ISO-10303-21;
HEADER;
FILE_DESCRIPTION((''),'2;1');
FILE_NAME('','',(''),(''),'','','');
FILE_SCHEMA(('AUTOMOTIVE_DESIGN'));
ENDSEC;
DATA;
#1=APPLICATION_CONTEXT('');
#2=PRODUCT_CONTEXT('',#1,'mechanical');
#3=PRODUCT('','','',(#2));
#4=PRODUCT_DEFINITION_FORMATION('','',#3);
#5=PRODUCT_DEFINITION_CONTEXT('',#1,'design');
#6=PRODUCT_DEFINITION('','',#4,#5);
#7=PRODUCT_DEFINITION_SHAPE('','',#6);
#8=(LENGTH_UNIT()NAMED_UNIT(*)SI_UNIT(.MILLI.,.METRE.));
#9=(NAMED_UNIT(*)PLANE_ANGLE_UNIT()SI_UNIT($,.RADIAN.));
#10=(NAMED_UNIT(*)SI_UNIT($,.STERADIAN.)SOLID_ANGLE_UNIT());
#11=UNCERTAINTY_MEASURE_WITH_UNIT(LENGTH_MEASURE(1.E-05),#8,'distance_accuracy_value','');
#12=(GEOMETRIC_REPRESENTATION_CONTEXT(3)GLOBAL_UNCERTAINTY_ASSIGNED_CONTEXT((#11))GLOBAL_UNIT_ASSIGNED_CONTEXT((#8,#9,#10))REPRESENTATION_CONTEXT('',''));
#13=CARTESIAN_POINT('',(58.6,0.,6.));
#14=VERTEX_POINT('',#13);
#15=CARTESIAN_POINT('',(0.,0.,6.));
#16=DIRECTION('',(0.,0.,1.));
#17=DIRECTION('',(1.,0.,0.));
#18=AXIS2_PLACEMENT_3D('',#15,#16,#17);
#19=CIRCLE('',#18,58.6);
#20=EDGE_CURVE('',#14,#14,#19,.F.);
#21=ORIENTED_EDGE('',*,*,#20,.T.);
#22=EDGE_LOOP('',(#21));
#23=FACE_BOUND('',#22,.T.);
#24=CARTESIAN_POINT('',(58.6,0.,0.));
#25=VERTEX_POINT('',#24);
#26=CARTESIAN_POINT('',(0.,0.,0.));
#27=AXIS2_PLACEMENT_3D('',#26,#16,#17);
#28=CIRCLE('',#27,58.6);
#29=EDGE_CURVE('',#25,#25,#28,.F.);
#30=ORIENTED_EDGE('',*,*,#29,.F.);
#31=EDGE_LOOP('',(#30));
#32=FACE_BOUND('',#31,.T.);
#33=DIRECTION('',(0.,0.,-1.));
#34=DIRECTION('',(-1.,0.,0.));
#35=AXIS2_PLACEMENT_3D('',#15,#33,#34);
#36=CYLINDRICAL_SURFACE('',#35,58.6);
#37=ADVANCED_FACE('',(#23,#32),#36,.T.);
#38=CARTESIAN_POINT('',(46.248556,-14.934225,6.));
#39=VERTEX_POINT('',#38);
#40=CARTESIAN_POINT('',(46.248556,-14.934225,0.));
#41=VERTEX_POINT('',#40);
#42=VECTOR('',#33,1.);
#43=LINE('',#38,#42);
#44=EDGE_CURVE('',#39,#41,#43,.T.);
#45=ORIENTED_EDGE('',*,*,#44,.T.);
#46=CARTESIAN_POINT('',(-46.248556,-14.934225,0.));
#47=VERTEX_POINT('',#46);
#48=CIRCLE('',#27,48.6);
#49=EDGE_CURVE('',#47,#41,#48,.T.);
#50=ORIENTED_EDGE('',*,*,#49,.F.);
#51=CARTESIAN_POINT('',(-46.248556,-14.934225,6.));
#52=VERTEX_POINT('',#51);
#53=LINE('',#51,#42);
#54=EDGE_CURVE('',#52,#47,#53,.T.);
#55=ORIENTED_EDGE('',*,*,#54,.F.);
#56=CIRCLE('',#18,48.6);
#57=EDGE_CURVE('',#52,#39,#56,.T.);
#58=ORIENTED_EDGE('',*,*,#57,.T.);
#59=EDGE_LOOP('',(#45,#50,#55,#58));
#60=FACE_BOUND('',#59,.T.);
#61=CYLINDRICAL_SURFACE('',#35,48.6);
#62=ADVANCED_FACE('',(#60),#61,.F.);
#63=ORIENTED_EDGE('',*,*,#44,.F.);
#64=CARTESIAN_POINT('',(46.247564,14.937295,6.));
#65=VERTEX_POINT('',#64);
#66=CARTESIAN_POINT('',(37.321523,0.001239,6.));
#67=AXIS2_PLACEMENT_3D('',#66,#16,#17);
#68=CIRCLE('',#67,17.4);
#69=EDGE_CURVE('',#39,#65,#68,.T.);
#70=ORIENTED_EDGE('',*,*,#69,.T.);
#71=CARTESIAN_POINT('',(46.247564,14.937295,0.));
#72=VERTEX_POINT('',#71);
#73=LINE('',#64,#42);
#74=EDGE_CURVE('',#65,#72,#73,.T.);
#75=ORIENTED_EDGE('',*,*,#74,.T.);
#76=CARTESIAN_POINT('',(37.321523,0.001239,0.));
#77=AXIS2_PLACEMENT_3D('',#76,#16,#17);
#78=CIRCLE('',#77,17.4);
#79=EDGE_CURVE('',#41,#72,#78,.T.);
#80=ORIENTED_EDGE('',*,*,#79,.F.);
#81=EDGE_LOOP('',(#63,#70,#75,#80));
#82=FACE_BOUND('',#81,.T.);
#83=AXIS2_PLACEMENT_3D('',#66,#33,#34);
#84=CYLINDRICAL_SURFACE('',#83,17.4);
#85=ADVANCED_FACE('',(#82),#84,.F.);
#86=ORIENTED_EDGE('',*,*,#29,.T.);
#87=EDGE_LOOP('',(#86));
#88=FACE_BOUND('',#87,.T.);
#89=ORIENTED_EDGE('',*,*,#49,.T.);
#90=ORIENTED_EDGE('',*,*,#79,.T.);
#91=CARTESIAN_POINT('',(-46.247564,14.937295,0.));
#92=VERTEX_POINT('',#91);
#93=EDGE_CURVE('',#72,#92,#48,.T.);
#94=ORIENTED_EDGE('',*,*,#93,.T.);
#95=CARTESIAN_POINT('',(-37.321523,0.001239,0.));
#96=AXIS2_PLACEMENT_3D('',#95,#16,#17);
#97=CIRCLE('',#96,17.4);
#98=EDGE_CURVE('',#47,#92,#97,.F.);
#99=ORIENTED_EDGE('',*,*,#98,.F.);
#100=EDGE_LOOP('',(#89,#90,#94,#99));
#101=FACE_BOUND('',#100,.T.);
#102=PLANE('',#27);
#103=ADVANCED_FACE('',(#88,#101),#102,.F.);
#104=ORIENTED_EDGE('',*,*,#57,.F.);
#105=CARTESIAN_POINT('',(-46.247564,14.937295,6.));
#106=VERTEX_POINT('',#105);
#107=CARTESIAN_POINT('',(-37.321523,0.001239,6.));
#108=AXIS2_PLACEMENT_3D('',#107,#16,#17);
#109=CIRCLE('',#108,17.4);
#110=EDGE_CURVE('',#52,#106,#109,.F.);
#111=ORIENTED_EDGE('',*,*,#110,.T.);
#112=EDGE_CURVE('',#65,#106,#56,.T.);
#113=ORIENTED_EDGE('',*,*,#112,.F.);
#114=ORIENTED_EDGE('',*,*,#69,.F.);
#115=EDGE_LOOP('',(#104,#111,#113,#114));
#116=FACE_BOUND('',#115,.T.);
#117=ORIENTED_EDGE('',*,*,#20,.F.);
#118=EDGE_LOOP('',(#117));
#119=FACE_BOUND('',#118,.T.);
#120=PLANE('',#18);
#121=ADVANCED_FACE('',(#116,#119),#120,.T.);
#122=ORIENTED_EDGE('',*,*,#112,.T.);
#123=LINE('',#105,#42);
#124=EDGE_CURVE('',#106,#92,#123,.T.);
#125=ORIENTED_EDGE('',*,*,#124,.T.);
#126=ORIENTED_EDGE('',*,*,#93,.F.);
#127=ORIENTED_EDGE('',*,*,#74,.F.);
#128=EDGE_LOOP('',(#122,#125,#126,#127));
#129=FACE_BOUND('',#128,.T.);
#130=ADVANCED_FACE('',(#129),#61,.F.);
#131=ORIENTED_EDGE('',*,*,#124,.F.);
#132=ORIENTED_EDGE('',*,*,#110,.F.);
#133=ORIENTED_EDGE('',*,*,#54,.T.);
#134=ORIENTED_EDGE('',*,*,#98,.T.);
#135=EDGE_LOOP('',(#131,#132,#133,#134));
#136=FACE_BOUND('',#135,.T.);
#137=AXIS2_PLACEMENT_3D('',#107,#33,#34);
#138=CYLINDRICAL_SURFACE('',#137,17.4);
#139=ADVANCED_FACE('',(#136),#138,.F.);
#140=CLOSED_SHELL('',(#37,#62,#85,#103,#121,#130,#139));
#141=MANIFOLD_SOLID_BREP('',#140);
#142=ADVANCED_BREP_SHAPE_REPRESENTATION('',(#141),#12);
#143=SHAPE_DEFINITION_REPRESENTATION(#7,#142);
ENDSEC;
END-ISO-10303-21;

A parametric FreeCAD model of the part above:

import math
import FreeCAD as App
import Part
import Sketcher
from FreeCAD import Vector

doc = App.newDocument("Part")
body = doc.addObject("PartDesign::Body", "Body")

# Sketch on XY plane
sketch1 = body.newObject("Sketcher::SketchObject", "Sketch")
sketch1.AttachmentSupport = (doc.getObject("XY_Plane"), [""])
sketch1.MapMode = "FlatFace"
sketch1.addGeometry(Part.ArcOfCircle(Part.Circle(Vector(0, 0, 0), Vector(0, 0, 1), 59), math.radians(159), math.radians(381)), False)
sketch1.addGeometry(Part.ArcOfCircle(Part.Circle(Vector(0, 0, 0), Vector(0, 0, 1), 59), math.radians(21), math.radians(159)), False)
sketch1.addGeometry(Part.ArcOfCircle(Part.Circle(Vector(-37, 0, 0), Vector(0, 0, 1), 17), math.radians(121), math.radians(239)), False)
sketch1.addGeometry(Part.ArcOfCircle(Part.Circle(Vector(0, 0, 0), Vector(0, 0, 1), 49), math.radians(18), math.radians(162)), False)
sketch1.addGeometry(Part.ArcOfCircle(Part.Circle(Vector(37, 0, 0), Vector(0, 0, 1), 17), math.radians(-59), math.radians(59)), False)
sketch1.addGeometry(Part.ArcOfCircle(Part.Circle(Vector(0, 0, 0), Vector(0, 0, 1), 49), math.radians(-162), math.radians(-18)), False)
sketch1.addConstraint(Sketcher.Constraint("Tangent", 0, 1, 1, 2))
sketch1.addConstraint(Sketcher.Constraint("Coincident", 1, 1, 0, 2))
sketch1.addConstraint(Sketcher.Constraint("Coincident", 2, 1, 3, 2))
sketch1.addConstraint(Sketcher.Constraint("Coincident", 3, 1, 4, 2))
sketch1.addConstraint(Sketcher.Constraint("Coincident", 4, 1, 5, 2))
sketch1.addConstraint(Sketcher.Constraint("Coincident", 5, 1, 2, 2))
sketch1.addConstraint(Sketcher.Constraint("Coincident", 0, 3, -1, 1))
sketch1.addConstraint(Sketcher.Constraint("Coincident", 3, 3, -1, 1))
sketch1.addConstraint(Sketcher.Constraint("Coincident", 5, 3, -1, 1))
sketch1.addConstraint(Sketcher.Constraint("Equal", 2, 4))
sketch1.addConstraint(Sketcher.Constraint("Equal", 3, 5))
sketch1.addConstraint(Sketcher.Constraint("Symmetric", 2, 3, 4, 3, -2))
sketch1.addConstraint(Sketcher.Constraint("Horizontal", 0, 1, 1, 1))
sketch1.addConstraint(Sketcher.Constraint("Radius", 0, 58.6))
sketch1.addConstraint(Sketcher.Constraint("Radius", 2, 17.4))
sketch1.addConstraint(Sketcher.Constraint("Radius", 3, 48.6))
sketch1.addConstraint(Sketcher.Constraint("DistanceY", -1, 1, 2, 3, 0.001239))
sketch1.addConstraint(Sketcher.Constraint("DistanceX", 0, 1, -1, 1, 54.607142))
sketch1.addConstraint(Sketcher.Constraint("DistanceX", 0, 1, 2, 3, 17.285619))
pad1 = body.newObject("PartDesign::Pad", "Pad")
pad1.Profile = sketch1
pad1.Length = 6

doc.recompute()
